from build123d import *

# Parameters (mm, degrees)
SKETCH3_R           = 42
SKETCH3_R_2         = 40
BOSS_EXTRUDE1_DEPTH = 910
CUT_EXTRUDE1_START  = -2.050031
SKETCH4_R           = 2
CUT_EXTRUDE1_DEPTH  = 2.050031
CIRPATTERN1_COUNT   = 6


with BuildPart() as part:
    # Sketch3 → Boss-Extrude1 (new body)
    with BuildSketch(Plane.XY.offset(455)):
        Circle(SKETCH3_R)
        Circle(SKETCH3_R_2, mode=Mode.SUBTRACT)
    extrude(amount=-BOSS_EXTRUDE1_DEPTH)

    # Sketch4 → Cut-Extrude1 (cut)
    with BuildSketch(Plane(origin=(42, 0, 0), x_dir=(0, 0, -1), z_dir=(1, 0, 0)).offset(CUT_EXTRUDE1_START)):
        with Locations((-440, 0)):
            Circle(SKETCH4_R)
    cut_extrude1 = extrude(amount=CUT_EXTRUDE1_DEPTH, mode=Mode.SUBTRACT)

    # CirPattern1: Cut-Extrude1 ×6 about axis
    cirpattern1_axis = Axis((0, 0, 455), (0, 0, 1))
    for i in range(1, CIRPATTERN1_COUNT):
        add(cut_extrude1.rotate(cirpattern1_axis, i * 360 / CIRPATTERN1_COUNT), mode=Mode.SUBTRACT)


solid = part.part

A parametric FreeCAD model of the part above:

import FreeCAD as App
import Part
import Sketcher

V = App.Vector

doc = App.newDocument("Part")
body = doc.addObject("PartDesign::Body", "Body")

sketch1 = body.newObject("Sketcher::SketchObject", "Sketch")
sketch1.AttachmentSupport = (doc.getObject("XY_Plane"), [""])
sketch1.MapMode = "FlatFace"
sketch1.AttachmentOffset = App.Placement(V(0, 0, 455), App.Rotation())
sketch1.addGeometry([
    Part.Circle(V(0, 0, 0), V(0, 0, 1), 42),
    Part.Circle(V(0, 0, 0), V(0, 0, 1), 40),
], False)
sketch1.addConstraint([
    Sketcher.Constraint("Coincident", 0, 3, -1, 1),
    Sketcher.Constraint("Coincident", 1, 3, -1, 1),
    Sketcher.Constraint("Diameter", 0, 84.0),
    Sketcher.Constraint("Diameter", 1, 80.0),
])
pad1 = body.newObject("PartDesign::Pad", "Pad")
pad1.Profile = sketch1
pad1.Length = 910
pad1.Reversed = True

sketch2 = body.newObject("Sketcher::SketchObject", "Sketch001")
sketch2.AttachmentSupport = (doc.getObject("YZ_Plane"), [""])
sketch2.MapMode = "FlatFace"
sketch2.AttachmentOffset = App.Placement(V(0, 0, 39.949969), App.Rotation())
sketch2.addGeometry(Part.Circle(V(0, 440, 0), V(0, 0, 1), 2), False)
sketch2.addConstraint([
    Sketcher.Constraint("PointOnObject", 0, 3, -2),
    Sketcher.Constraint("Diameter", 0, 4.0),
    Sketcher.Constraint("DistanceY", -1, 1, 0, 3, 440.0),
])
pocket1 = body.newObject("PartDesign::Pocket", "Pocket")
pocket1.Profile = sketch2
pocket1.Length = 2.050031
pocket1.Reversed = True
doc.recompute()

polarpattern = body.newObject("PartDesign::PolarPattern", "PolarPattern")
polarpattern.Originals = [pocket1]
polarpattern.Axis = (doc.getObject("Z_Axis"), [""])
polarpattern.Angle = 360
polarpattern.Occurrences = 6
body.Tip = polarpattern

doc.recompute()
